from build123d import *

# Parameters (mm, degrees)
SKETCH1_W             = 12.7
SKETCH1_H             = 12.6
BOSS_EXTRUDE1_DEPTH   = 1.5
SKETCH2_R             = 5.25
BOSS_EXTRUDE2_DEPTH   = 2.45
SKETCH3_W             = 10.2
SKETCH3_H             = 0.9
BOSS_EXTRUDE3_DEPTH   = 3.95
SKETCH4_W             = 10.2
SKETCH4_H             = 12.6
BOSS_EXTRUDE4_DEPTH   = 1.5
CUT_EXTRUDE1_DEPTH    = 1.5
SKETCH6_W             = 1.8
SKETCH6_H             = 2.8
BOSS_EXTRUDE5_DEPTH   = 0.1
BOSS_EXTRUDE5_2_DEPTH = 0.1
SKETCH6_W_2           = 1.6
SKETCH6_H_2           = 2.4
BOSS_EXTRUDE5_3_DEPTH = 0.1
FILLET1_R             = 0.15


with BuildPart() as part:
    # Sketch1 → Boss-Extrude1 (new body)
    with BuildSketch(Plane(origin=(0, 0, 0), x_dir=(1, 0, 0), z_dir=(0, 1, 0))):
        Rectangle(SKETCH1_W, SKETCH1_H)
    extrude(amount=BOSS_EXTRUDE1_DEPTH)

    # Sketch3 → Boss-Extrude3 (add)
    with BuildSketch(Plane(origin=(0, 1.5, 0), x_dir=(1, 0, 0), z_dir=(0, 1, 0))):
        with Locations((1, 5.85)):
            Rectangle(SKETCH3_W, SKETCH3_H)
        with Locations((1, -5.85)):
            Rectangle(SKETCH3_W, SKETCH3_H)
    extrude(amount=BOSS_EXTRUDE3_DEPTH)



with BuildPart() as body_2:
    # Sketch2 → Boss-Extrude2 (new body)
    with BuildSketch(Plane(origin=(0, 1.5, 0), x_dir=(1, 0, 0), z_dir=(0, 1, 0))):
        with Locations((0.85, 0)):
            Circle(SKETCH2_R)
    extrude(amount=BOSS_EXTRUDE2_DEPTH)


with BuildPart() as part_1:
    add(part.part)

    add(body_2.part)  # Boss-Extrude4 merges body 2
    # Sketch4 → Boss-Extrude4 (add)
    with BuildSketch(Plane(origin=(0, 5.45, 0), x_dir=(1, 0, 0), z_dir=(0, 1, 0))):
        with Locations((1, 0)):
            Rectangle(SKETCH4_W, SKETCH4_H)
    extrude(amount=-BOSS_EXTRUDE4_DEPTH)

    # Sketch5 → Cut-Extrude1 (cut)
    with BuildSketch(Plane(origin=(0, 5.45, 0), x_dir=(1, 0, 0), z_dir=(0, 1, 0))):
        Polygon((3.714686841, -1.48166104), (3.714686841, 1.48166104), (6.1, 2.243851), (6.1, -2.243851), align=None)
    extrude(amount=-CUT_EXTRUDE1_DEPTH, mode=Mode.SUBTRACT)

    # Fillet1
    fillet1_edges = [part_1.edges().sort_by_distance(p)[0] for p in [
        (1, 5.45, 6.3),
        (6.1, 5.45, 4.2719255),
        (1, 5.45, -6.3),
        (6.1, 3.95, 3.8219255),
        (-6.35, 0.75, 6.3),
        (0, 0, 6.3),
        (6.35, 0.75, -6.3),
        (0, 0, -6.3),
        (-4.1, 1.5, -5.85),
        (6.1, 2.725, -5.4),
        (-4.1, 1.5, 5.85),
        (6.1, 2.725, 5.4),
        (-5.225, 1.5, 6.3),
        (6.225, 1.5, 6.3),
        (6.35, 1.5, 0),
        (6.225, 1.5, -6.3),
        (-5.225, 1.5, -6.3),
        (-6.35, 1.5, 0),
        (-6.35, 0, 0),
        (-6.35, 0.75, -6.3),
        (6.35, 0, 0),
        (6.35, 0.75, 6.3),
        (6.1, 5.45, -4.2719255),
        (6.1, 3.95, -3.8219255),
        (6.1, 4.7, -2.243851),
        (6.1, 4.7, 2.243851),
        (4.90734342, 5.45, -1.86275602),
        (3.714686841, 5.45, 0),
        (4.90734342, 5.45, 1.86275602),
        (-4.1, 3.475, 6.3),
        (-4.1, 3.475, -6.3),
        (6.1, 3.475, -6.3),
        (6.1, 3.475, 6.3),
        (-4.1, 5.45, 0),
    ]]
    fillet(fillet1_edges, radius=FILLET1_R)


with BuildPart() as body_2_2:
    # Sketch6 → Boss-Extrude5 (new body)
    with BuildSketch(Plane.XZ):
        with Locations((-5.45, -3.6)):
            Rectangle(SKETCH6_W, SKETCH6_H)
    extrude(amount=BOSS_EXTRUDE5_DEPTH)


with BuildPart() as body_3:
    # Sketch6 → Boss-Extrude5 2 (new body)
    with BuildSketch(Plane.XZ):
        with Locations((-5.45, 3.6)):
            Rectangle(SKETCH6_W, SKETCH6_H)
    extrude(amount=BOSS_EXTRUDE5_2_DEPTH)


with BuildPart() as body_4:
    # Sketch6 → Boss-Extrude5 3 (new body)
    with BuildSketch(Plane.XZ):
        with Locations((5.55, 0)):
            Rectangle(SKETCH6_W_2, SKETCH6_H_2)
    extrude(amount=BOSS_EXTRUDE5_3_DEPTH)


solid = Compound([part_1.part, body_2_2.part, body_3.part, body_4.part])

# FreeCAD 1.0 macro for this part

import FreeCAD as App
import Part
import Sketcher

V = App.Vector
Q = App.Units.Quantity


def edges_at(feature, points):
    """Names of the edges that pass closest to the given points."""
    edges = feature.Shape.Edges
    near = lambda p: min(range(len(edges)), key=lambda i: edges[i].distToShape(Part.Vertex(*p))[0])
    return sorted({f"Edge{near(p) + 1}" for p in points})

doc = App.newDocument("Part")
params = doc.addObject("Spreadsheet::Sheet", "Params")
for row, (alias, value) in enumerate([
    ("sketch1_width", "12.7 mm"),
    ("sketch1_height", "12.6 mm"),
    ("pad1_length", "1.5 mm"),
    ("sketch2_width", "10.2 mm"),
    ("sketch2_height", "0.9 mm"),
    ("pad2_length", "3.95 mm"),
    ("sketch3_diameter", "10.5 mm"),
    ("pad3_length", "2.45 mm"),
    ("sketch4_width", "10.2 mm"),
    ("sketch4_height", "12.6 mm"),
    ("pad4_length", "1.5 mm"),
    ("pocket1_length", "1.5 mm"),
    ("fillet_radius", "0.15 mm"),
    ("sketch6_width", "1.8 mm"),
    ("sketch6_height", "2.8 mm"),
    ("pad5_length", "0.1 mm"),
    ("sketch7_width", "1.8 mm"),
    ("sketch7_height", "2.8 mm"),
    ("pad6_length", "0.1 mm"),
    ("sketch8_width", "1.6 mm"),
    ("sketch8_height", "2.4 mm"),
    ("pad7_length", "0.1 mm"),
], start=1):
    params.set(f"A{row}", alias)
    params.set(f"B{row}", "=" + value)
    params.setAlias(f"B{row}", alias)

body = doc.addObject("PartDesign::Body", "Body")

# Sketch on XZ plane
sketch1 = body.newObject("Sketcher::SketchObject", "Sketch")
sketch1.AttachmentSupport = (doc.getObject("XZ_Plane"), [""])
sketch1.MapMode = "FlatFace"
sketch1.addGeometry(Part.LineSegment(V(-6, -6, 0), V(-6, 6, 0)), False)
sketch1.addGeometry(Part.LineSegment(V(-6, 6, 0), V(6, 6, 0)), False)
sketch1.addGeometry(Part.LineSegment(V(6, 6, 0), V(6, -6, 0)), False)
sketch1.addGeometry(Part.LineSegment(V(6, -6, 0), V(-6, -6, 0)), False)
sketch1.addConstraint(Sketcher.Constraint("Coincident", 0, 2, 1, 1))
sketch1.addConstraint(Sketcher.Constraint("Coincident", 1, 2, 2, 1))
sketch1.addConstraint(Sketcher.Constraint("Coincident", 2, 2, 3, 1))
sketch1.addConstraint(Sketcher.Constraint("Coincident", 3, 2, 0, 1))
sketch1.addConstraint(Sketcher.Constraint("Vertical", 0))
sketch1.addConstraint(Sketcher.Constraint("Horizontal", 1))
sketch1.addConstraint(Sketcher.Constraint("Vertical", 2))
sketch1.addConstraint(Sketcher.Constraint("Horizontal", 3))
sketch1.addConstraint(Sketcher.Constraint("Symmetric", 0, 2, 2, 2, -1, 1))
sketch1.addConstraint(Sketcher.Constraint("DistanceX", 1, 1, 1, 2, Q("12.7 mm")))
sketch1.addConstraint(Sketcher.Constraint("DistanceY", 0, 1, 0, 2, Q("12.6 mm")))
sketch1.setExpression("Constraints[9]", "Params.sketch1_width")
sketch1.setExpression("Constraints[10]", "Params.sketch1_height")
pad1 = body.newObject("PartDesign::Pad", "Pad")
pad1.Profile = sketch1
pad1.setExpression("Length", "Params.pad1_length")
pad1.Reversed = True

# Sketch on XZ plane
sketch2 = body.newObject("Sketcher::SketchObject", "Sketch001")
sketch2.AttachmentSupport = (doc.getObject("XZ_Plane"), [""])
sketch2.MapMode = "FlatFace"
sketch2.AttachmentOffset = App.Placement(V(0, 0, -1.5), App.Rotation())
sketch2.addGeometry(Part.LineSegment(V(-4.1, -6.3, 0), V(-4.1, -5.4, 0)), False)
sketch2.addGeometry(Part.LineSegment(V(-4.1, -5.4, 0), V(6.1, -5.4, 0)), False)
sketch2.addGeometry(Part.LineSegment(V(6.1, -5.4, 0), V(6.1, -6.3, 0)), False)
sketch2.addGeometry(Part.LineSegment(V(6.1, -6.3, 0), V(-4.1, -6.3, 0)), False)
sketch2.addGeometry(Part.LineSegment(V(-4.1, 5.4, 0), V(-4.1, 6.3, 0)), False)
sketch2.addGeometry(Part.LineSegment(V(-4.1, 6.3, 0), V(6.1, 6.3, 0)), False)
sketch2.addGeometry(Part.LineSegment(V(6.1, 6.3, 0), V(6.1, 5.4, 0)), False)
sketch2.addGeometry(Part.LineSegment(V(6.1, 5.4, 0), V(-4.1, 5.4, 0)), False)
sketch2.addConstraint(Sketcher.Constraint("Coincident", 0, 2, 1, 1))
sketch2.addConstraint(Sketcher.Constraint("Coincident", 1, 2, 2, 1))
sketch2.addConstraint(Sketcher.Constraint("Coincident", 2, 2, 3, 1))
sketch2.addConstraint(Sketcher.Constraint("Coincident", 3, 2, 0, 1))
sketch2.addConstraint(Sketcher.Constraint("Coincident", 4, 2, 5, 1))
sketch2.addConstraint(Sketcher.Constraint("Coincident", 5, 2, 6, 1))
sketch2.addConstraint(Sketcher.Constraint("Coincident", 6, 2, 7, 1))
sketch2.addConstraint(Sketcher.Constraint("Coincident", 7, 2, 4, 1))
sketch2.addConstraint(Sketcher.Constraint("Vertical", 0))
sketch2.addConstraint(Sketcher.Constraint("Horizontal", 1))
sketch2.addConstraint(Sketcher.Constraint("Vertical", 2))
sketch2.addConstraint(Sketcher.Constraint("Horizontal", 3))
sketch2.addConstraint(Sketcher.Constraint("Vertical", 4))
sketch2.addConstraint(Sketcher.Constraint("Horizontal", 5))
sketch2.addConstraint(Sketcher.Constraint("Vertical", 6))
sketch2.addConstraint(Sketcher.Constraint("Horizontal", 7))
sketch2.addConstraint(Sketcher.Constraint("Symmetric", 3, 2, 4, 2, -1))
sketch2.addConstraint(Sketcher.Constraint("Symmetric", 1, 2, 6, 2, -1))
sketch2.addConstraint(Sketcher.Constraint("DistanceX", 1, 1, 1, 2, Q("10.2 mm")))
sketch2.addConstraint(Sketcher.Constraint("DistanceY", 0, 1, 0, 2, Q("0.9 mm")))
sketch2.addConstraint(Sketcher.Constraint("DistanceX", 0, 2, -1, 1, Q("4.1 mm")))
sketch2.addConstraint(Sketcher.Constraint("DistanceY", 0, 2, -1, 1, Q("5.4 mm")))
sketch2.setExpression("Constraints[18]", "Params.sketch2_width")
sketch2.setExpression("Constraints[19]", "Params.sketch2_height")
pad2 = body.newObject("PartDesign::Pad", "Pad001")
pad2.Profile = sketch2
pad2.setExpression("Length", "Params.pad2_length")
pad2.Reversed = True
body2 = doc.addObject("PartDesign::Body", "Body001")

# Sketch on XZ plane
sketch3 = body2.newObject("Sketcher::SketchObject", "Sketch002")
sketch3.AttachmentSupport = (doc.getObject("XZ_Plane001"), [""])
sketch3.MapMode = "FlatFace"
sketch3.AttachmentOffset = App.Placement(V(0, 0, -1.5), App.Rotation())
sketch3.addGeometry(Part.Circle(V(1, 0, 0), V(0, 0, 1), 5), False)
sketch3.addConstraint(Sketcher.Constraint("PointOnObject", 0, 3, -1))
sketch3.addConstraint(Sketcher.Constraint("Diameter", 0, Q("10.5 mm")))
sketch3.addConstraint(Sketcher.Constraint("DistanceX", -1, 1, 0, 3, Q("0.85 mm")))
sketch3.setExpression("Constraints[1]", "Params.sketch3_diameter")
pad3 = body2.newObject("PartDesign::Pad", "Pad002")
pad3.Profile = sketch3
pad3.setExpression("Length", "Params.pad3_length")
pad3.Reversed = True
doc.recompute()

boolean = body.newObject("PartDesign::Boolean", "Boolean")
boolean.Type = "Fuse"
boolean.addObjects([body2])

# Sketch on XZ plane
sketch4 = body.newObject("Sketcher::SketchObject", "Sketch003")
sketch4.AttachmentSupport = (doc.getObject("XZ_Plane"), [""])
sketch4.MapMode = "FlatFace"
sketch4.AttachmentOffset = App.Placement(V(0, 0, -5.45), App.Rotation())
sketch4.addGeometry(Part.LineSegment(V(-4, -6, 0), V(-4, 6, 0)), False)
sketch4.addGeometry(Part.LineSegment(V(-4, 6, 0), V(6, 6, 0)), False)
sketch4.addGeometry(Part.LineSegment(V(6, 6, 0), V(6, -6, 0)), False)
sketch4.addGeometry(Part.LineSegment(V(6, -6, 0), V(-4, -6, 0)), False)
sketch4.addConstraint(Sketcher.Constraint("Coincident", 0, 2, 1, 1))
sketch4.addConstraint(Sketcher.Constraint("Coincident", 1, 2, 2, 1))
sketch4.addConstraint(Sketcher.Constraint("Coincident", 2, 2, 3, 1))
sketch4.addConstraint(Sketcher.Constraint("Coincident", 3, 2, 0, 1))
sketch4.addConstraint(Sketcher.Constraint("Vertical", 0))
sketch4.addConstraint(Sketcher.Constraint("Horizontal", 1))
sketch4.addConstraint(Sketcher.Constraint("Vertical", 2))
sketch4.addConstraint(Sketcher.Constraint("Horizontal", 3))
sketch4.addConstraint(Sketcher.Constraint("DistanceX", 1, 1, 1, 2, Q("10.2 mm")))
sketch4.addConstraint(Sketcher.Constraint("DistanceY", 0, 1, 0, 2, Q("12.6 mm")))
sketch4.addConstraint(Sketcher.Constraint("DistanceX", 0, 2, -1, 1, Q("4.1 mm")))
sketch4.addConstraint(Sketcher.Constraint("DistanceY", -1, 1, 0, 2, Q("6.3 mm")))
sketch4.setExpression("Constraints[8]", "Params.sketch4_width")
sketch4.setExpression("Constraints[9]", "Params.sketch4_height")
pad4 = body.newObject("PartDesign::Pad", "Pad003")
pad4.Profile = sketch4
pad4.setExpression("Length", "Params.pad4_length")

# Sketch on XZ plane
sketch5 = body.newObject("Sketcher::SketchObject", "Sketch004")
sketch5.AttachmentSupport = (doc.getObject("XZ_Plane"), [""])
sketch5.MapMode = "FlatFace"
sketch5.AttachmentOffset = App.Placement(V(0, 0, -5.45), App.Rotation())
sketch5.addGeometry(Part.LineSegment(V(3.7, -1.5, 0), V(3.7, 1.5, 0)), False)
sketch5.addGeometry(Part.LineSegment(V(3.7, 1.5, 0), V(6.1, 2.2, 0)), False)
sketch5.addGeometry(Part.LineSegment(V(6.1, 2.2, 0), V(6.1, -2.2, 0)), False)
sketch5.addGeometry(Part.LineSegment(V(6.1, -2.2, 0), V(3.7, -1.5, 0)), False)
sketch5.addConstraint(Sketcher.Constraint("Coincident", 0, 2, 1, 1))
sketch5.addConstraint(Sketcher.Constraint("Coincident", 1, 2, 2, 1))
sketch5.addConstraint(Sketcher.Constraint("Coincident", 2, 2, 3, 1))
sketch5.addConstraint(Sketcher.Constraint("Coincident", 3, 2, 0, 1))
sketch5.addConstraint(Sketcher.Constraint("Vertical", 0))
sketch5.addConstraint(Sketcher.Constraint("Vertical", 2))
sketch5.addConstraint(Sketcher.Constraint("Equal", 1, 3))
sketch5.addConstraint(Sketcher.Constraint("DistanceX", -1, 1, 1, 2, Q("6.1 mm")))
sketch5.addConstraint(Sketcher.Constraint("DistanceY", 2, 2, 2, 1, Q("4.487702 mm")))
sketch5.addConstraint(Sketcher.Constraint("DistanceY", 0, 1, 0, 2, Q("2.963322 mm")))
sketch5.addConstraint(Sketcher.Constraint("DistanceY", -1, 1, 0, 2, Q("1.481661 mm")))
sketch5.addConstraint(Sketcher.Constraint("Distance", 1, Q("2.504127 mm")))
pocket1 = body.newObject("PartDesign::Pocket", "Pocket")
pocket1.Profile = sketch5
pocket1.setExpression("Length", "Params.pocket1_length")
pocket1.Reversed = True
doc.recompute()

fillet = body.newObject("PartDesign::Fillet", "Fillet")
fillet.Base = (pocket1, edges_at(pocket1, [
    (1, 5.45, 6.3),
    (6.1, 5.45, 4.272),
    (1, 5.45, -6.3),
    (6.1, 3.95, 3.822),
    (-6.35, 0.75, 6.3),
    (0, 0, 6.3),
    (6.35, 0.75, -6.3),
    (0, 0, -6.3),
    (-4.1, 1.5, -5.85),
    (6.1, 2.725, -5.4),
    (-4.1, 1.5, 5.85),
    (6.1, 2.725, 5.4),
    (-5.225, 1.5, 6.3),
    (6.225, 1.5, 6.3),
    (6.35, 1.5, 0),
    (6.225, 1.5, -6.3),
    (-5.225, 1.5, -6.3),
    (-6.35, 1.5, 0),
    (-6.35, 0, 0),
    (-6.35, 0.75, -6.3),
    (6.35, 0, 0),
    (6.35, 0.75, 6.3),
    (6.1, 5.45, -4.272),
    (6.1, 3.95, -3.822),
    (6.1, 4.7, -2.244),
    (6.1, 4.7, 2.244),
    (4.907, 5.45, -1.863),
    (3.715, 5.45, 0),
    (4.907, 5.45, 1.863),
    (-4.1, 3.475, 6.3),
    (-4.1, 3.475, -6.3),
    (6.1, 3.475, -6.3),
    (6.1, 3.475, 6.3),
    (-4.1, 5.45, 0),
]))
fillet.setExpression("Radius", "Params.fillet_radius")
body3 = doc.addObject("PartDesign::Body", "Body002")

# Sketch on XZ plane
sketch6 = body3.newObject("Sketcher::SketchObject", "Sketch005")
sketch6.AttachmentSupport = (doc.getObject("XZ_Plane002"), [""])
sketch6.MapMode = "FlatFace"
sketch6.addGeometry(Part.LineSegment(V(-6.3, -2.2, 0), V(-6.3, -5, 0)), False)
sketch6.addGeometry(Part.LineSegment(V(-6.3, -5, 0), V(-4.5, -5, 0)), False)
sketch6.addGeometry(Part.LineSegment(V(-4.5, -5, 0), V(-4.5, -2.2, 0)), False)
sketch6.addGeometry(Part.LineSegment(V(-4.5, -2.2, 0), V(-6.3, -2.2, 0)), False)
sketch6.addConstraint(Sketcher.Constraint("Coincident", 0, 2, 1, 1))
sketch6.addConstraint(Sketcher.Constraint("Coincident", 1, 2, 2, 1))
sketch6.addConstraint(Sketcher.Constraint("Coincident", 2, 2, 3, 1))
sketch6.addConstraint(Sketcher.Constraint("Coincident", 3, 2, 0, 1))
sketch6.addConstraint(Sketcher.Constraint("Vertical", 0))
sketch6.addConstraint(Sketcher.Constraint("Horizontal", 1))
sketch6.addConstraint(Sketcher.Constraint("Vertical", 2))
sketch6.addConstraint(Sketcher.Constraint("Horizontal", 3))
sketch6.addConstraint(Sketcher.Constraint("DistanceX", 1, 1, 1, 2, Q("1.8 mm")))
sketch6.addConstraint(Sketcher.Constraint("DistanceY", 0, 2, 0, 1, Q("2.8 mm")))
sketch6.addConstraint(Sketcher.Constraint("DistanceY", 0, 2, -1, 1, Q("5 mm")))
sketch6.addConstraint(Sketcher.Constraint("DistanceX", 0, 2, -1, 1, Q("6.35 mm")))
sketch6.setExpression("Constraints[8]", "Params.sketch6_width")
sketch6.setExpression("Constraints[9]", "Params.sketch6_height")
pad5 = body3.newObject("PartDesign::Pad", "Pad004")
pad5.Profile = sketch6
pad5.setExpression("Length", "Params.pad5_length")
body4 = doc.addObject("PartDesign::Body", "Body003")

# Sketch on XZ plane
sketch7 = body4.newObject("Sketcher::SketchObject", "Sketch006")
sketch7.AttachmentSupport = (doc.getObject("XZ_Plane003"), [""])
sketch7.MapMode = "FlatFace"
sketch7.addGeometry(Part.LineSegment(V(-6.3, 5, 0), V(-6.3, 2.2, 0)), False)
sketch7.addGeometry(Part.LineSegment(V(-6.3, 2.2, 0), V(-4.5, 2.2, 0)), False)
sketch7.addGeometry(Part.LineSegment(V(-4.5, 2.2, 0), V(-4.5, 5, 0)), False)
sketch7.addGeometry(Part.LineSegment(V(-4.5, 5, 0), V(-6.3, 5, 0)), False)
sketch7.addConstraint(Sketcher.Constraint("Coincident", 0, 2, 1, 1))
sketch7.addConstraint(Sketcher.Constraint("Coincident", 1, 2, 2, 1))
sketch7.addConstraint(Sketcher.Constraint("Coincident", 2, 2, 3, 1))
sketch7.addConstraint(Sketcher.Constraint("Coincident", 3, 2, 0, 1))
sketch7.addConstraint(Sketcher.Constraint("Vertical", 0))
sketch7.addConstraint(Sketcher.Constraint("Horizontal", 1))
sketch7.addConstraint(Sketcher.Constraint("Vertical", 2))
sketch7.addConstraint(Sketcher.Constraint("Horizontal", 3))
sketch7.addConstraint(Sketcher.Constraint("DistanceX", 1, 1, 1, 2, Q("1.8 mm")))
sketch7.addConstraint(Sketcher.Constraint("DistanceY", 0, 2, 0, 1, Q("2.8 mm")))
sketch7.addConstraint(Sketcher.Constraint("DistanceY", -1, 1, 2, 2, Q("5 mm")))
sketch7.addConstraint(Sketcher.Constraint("DistanceX", 0, 2, -1, 1, Q("6.35 mm")))
sketch7.setExpression("Constraints[8]", "Params.sketch7_width")
sketch7.setExpression("Constraints[9]", "Params.sketch7_height")
pad6 = body4.newObject("PartDesign::Pad", "Pad005")
pad6.Profile = sketch7
pad6.setExpression("Length", "Params.pad6_length")
body5 = doc.addObject("PartDesign::Body", "Body004")

# Sketch on XZ plane
sketch8 = body5.newObject("Sketcher::SketchObject", "Sketch007")
sketch8.AttachmentSupport = (doc.getObject("XZ_Plane004"), [""])
sketch8.MapMode = "FlatFace"
sketch8.addGeometry(Part.LineSegment(V(4.8, 1.2, 0), V(4.8, -1.2, 0)), False)
sketch8.addGeometry(Part.LineSegment(V(4.8, -1.2, 0), V(6.3, -1.2, 0)), False)
sketch8.addGeometry(Part.LineSegment(V(6.3, -1.2, 0), V(6.3, 1.2, 0)), False)
sketch8.addGeometry(Part.LineSegment(V(6.3, 1.2, 0), V(4.8, 1.2, 0)), False)
sketch8.addConstraint(Sketcher.Constraint("Coincident", 0, 2, 1, 1))
sketch8.addConstraint(Sketcher.Constraint("Coincident", 1, 2, 2, 1))
sketch8.addConstraint(Sketcher.Constraint("Coincident", 2, 2, 3, 1))
sketch8.addConstraint(Sketcher.Constraint("Coincident", 3, 2, 0, 1))
sketch8.addConstraint(Sketcher.Constraint("Vertical", 0))
sketch8.addConstraint(Sketcher.Constraint("Horizontal", 1))
sketch8.addConstraint(Sketcher.Constraint("Vertical", 2))
sketch8.addConstraint(Sketcher.Constraint("Horizontal", 3))
sketch8.addConstraint(Sketcher.Constraint("DistanceX", 1, 1, 1, 2, Q("1.6 mm")))
sketch8.addConstraint(Sketcher.Constraint("DistanceY", 0, 2, 0, 1, Q("2.4 mm")))
sketch8.addConstraint(Sketcher.Constraint("DistanceY", 0, 2, -1, 1, Q("1.2 mm")))
sketch8.addConstraint(Sketcher.Constraint("DistanceX", -1, 1, 0, 2, Q("4.75 mm")))
sketch8.setExpression("Constraints[8]", "Params.sketch8_width")
sketch8.setExpression("Constraints[9]", "Params.sketch8_height")
pad7 = body5.newObject("PartDesign::Pad", "Pad006")
pad7.Profile = sketch8
pad7.setExpression("Length", "Params.pad7_length")

doc.recompute()
